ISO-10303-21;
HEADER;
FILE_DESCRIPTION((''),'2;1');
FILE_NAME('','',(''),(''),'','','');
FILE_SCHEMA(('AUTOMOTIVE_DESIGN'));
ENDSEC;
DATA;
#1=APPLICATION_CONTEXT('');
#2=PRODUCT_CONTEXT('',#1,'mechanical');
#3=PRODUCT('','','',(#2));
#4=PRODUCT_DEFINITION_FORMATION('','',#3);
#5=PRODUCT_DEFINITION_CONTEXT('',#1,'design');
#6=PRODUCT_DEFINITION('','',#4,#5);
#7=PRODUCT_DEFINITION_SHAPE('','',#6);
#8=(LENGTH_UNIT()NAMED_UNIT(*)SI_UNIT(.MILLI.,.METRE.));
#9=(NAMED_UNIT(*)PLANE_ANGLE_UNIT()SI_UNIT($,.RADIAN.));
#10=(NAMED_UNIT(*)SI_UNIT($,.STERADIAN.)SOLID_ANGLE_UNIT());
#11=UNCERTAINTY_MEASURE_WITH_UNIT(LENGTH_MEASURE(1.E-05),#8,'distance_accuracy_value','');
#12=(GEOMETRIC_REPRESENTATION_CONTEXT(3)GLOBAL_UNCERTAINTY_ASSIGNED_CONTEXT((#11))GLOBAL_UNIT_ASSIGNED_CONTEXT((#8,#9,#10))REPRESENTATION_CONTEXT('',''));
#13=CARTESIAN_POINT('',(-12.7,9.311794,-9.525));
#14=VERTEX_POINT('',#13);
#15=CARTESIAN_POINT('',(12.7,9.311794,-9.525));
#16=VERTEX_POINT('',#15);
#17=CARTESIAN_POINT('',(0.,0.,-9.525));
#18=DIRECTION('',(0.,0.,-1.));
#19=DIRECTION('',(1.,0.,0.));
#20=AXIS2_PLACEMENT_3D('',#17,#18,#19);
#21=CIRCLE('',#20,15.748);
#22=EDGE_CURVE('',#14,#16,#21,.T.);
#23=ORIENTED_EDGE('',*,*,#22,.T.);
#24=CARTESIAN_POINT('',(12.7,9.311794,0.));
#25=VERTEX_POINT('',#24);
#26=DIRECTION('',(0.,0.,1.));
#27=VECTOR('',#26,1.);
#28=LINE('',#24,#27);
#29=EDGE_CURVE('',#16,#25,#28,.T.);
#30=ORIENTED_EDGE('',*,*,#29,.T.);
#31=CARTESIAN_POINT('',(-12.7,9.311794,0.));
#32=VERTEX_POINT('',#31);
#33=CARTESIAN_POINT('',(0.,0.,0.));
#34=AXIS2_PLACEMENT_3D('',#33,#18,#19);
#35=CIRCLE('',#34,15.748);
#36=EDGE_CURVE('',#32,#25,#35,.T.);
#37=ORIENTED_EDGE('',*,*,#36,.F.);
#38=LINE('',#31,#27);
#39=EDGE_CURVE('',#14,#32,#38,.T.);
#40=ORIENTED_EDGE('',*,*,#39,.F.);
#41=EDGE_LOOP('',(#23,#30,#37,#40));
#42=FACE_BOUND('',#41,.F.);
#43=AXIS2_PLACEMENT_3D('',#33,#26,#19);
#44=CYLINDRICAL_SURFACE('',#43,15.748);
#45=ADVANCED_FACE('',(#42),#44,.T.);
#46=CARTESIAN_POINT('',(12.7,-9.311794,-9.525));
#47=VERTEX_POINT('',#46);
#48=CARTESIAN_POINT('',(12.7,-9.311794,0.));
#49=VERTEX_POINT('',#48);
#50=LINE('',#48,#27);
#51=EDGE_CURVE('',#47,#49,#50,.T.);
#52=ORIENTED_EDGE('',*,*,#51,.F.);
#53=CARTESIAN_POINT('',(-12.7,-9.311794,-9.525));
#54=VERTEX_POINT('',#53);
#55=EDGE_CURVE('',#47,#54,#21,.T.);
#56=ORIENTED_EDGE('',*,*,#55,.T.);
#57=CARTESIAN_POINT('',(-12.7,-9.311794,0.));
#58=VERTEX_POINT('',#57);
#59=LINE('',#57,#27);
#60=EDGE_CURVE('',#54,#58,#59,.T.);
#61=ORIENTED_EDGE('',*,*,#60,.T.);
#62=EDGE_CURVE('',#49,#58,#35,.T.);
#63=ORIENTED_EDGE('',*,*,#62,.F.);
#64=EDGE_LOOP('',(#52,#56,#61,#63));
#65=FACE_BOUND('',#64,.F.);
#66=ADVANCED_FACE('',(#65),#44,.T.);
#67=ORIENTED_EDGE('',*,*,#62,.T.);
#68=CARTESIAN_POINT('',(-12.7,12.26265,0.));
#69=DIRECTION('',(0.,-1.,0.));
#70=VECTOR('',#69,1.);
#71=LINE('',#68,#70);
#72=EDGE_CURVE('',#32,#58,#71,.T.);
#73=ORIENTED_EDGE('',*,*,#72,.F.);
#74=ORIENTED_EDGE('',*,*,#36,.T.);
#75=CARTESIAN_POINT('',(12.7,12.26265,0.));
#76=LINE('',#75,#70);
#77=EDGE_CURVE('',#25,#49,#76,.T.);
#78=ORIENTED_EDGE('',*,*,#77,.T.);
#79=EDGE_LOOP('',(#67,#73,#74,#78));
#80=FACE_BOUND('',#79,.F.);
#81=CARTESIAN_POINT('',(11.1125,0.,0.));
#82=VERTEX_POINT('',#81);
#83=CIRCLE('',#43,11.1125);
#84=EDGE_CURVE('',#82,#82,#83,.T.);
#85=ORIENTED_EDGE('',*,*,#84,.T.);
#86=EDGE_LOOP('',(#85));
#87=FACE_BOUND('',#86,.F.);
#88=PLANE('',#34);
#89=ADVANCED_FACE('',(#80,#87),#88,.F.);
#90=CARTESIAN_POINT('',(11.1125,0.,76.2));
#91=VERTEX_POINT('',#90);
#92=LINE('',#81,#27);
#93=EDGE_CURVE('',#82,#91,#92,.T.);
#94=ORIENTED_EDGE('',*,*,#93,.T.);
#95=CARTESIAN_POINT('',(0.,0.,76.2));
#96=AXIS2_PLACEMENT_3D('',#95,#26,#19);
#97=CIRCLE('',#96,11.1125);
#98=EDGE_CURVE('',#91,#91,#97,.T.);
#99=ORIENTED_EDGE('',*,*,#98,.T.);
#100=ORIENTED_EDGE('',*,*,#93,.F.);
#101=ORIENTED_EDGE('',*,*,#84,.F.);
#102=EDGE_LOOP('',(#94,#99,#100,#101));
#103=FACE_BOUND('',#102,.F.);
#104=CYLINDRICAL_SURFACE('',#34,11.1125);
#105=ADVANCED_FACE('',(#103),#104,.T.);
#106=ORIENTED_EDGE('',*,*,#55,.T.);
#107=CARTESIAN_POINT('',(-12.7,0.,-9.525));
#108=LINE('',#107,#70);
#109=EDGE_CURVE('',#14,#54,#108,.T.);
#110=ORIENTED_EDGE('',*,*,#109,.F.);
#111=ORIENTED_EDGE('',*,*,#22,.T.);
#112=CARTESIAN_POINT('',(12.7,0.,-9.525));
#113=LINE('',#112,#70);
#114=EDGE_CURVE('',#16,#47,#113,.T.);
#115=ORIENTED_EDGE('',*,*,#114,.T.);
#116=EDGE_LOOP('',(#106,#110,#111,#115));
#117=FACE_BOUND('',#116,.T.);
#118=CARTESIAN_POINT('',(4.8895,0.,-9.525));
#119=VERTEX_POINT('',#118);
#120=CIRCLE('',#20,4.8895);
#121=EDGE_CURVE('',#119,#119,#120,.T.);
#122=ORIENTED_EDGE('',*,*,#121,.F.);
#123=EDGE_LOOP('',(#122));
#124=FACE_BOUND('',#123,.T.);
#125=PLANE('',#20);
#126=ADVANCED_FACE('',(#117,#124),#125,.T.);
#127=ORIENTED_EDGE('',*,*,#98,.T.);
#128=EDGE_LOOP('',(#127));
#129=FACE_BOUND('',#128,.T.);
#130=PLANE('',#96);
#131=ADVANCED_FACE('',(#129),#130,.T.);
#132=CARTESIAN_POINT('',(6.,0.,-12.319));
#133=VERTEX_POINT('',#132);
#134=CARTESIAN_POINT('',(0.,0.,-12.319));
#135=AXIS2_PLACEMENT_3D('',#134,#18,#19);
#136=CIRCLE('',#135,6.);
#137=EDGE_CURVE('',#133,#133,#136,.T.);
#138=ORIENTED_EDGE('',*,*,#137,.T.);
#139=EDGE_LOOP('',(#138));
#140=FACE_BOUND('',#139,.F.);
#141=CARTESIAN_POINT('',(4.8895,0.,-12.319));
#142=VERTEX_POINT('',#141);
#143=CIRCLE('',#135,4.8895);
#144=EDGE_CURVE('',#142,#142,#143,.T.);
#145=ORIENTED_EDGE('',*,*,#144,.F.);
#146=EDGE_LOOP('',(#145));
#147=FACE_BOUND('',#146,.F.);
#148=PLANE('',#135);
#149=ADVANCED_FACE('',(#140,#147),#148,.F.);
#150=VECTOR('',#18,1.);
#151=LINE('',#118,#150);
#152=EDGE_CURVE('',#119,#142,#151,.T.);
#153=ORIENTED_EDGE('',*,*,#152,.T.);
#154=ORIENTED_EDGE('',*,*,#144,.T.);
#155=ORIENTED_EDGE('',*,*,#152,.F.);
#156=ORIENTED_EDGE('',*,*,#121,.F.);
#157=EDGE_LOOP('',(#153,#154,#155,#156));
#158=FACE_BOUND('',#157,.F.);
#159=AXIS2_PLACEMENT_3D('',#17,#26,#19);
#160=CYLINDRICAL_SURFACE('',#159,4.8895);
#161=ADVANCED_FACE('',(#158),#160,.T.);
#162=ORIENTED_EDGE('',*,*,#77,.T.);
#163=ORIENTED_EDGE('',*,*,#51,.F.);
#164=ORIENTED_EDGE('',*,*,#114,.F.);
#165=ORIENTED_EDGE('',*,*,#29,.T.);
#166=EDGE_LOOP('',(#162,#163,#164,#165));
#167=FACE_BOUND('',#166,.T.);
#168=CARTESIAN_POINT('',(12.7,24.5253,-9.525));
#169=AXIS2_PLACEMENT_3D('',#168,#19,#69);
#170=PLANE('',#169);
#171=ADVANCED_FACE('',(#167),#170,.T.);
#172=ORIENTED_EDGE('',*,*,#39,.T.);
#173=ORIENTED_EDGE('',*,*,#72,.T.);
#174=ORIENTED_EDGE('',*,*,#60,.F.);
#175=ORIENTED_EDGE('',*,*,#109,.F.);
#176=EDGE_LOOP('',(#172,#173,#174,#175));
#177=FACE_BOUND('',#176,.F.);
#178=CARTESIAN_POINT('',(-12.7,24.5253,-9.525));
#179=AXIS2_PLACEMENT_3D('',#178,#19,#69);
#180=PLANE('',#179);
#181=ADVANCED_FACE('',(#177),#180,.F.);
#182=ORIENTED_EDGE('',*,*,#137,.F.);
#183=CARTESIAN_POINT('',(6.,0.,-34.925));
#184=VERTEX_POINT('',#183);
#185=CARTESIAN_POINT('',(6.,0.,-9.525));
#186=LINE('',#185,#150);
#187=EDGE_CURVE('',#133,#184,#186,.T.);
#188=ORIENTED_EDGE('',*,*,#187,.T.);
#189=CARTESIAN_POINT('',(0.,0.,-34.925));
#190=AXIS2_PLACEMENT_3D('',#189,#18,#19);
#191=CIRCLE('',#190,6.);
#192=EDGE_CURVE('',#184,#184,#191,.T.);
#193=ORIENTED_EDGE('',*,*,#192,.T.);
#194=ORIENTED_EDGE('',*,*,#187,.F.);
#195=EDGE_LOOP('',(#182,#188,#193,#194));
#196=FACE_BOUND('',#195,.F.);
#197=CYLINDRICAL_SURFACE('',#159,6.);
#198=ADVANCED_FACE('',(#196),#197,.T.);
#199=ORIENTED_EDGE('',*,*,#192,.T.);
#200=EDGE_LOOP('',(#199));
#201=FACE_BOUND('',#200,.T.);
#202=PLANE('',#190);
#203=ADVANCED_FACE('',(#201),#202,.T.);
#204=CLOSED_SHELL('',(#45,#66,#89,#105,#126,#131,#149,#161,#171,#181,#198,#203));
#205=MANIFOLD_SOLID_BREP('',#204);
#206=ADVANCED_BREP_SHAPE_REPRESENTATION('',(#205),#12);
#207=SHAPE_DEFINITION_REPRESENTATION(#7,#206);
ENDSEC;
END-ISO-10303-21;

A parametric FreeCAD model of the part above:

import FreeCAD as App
import Part
import Sketcher
Q = App.Units.Quantity


def add_polygon(sketch, points):
    """Adds a closed chain of lines whose ends are joined by coincident constraints."""
    first, n = sketch.GeometryCount, len(points)
    for a, b in zip(points, points[1:] + points[:1]):
        sketch.addGeometry(Part.LineSegment(App.Vector(*a, 0), App.Vector(*b, 0)), False)
    for i in range(n):
        sketch.addConstraint(Sketcher.Constraint("Coincident", first + i, 2, first + (i + 1) % n, 1))

doc = App.newDocument("Part")
body = doc.addObject("PartDesign::Body", "Body")

sketch1 = body.newObject("Sketcher::SketchObject", "Sketch")
sketch1.AttachmentSupport = (doc.getObject("XY_Plane"), [""])
sketch1.MapMode = "FlatFace"
sketch1.addGeometry(Part.Circle(App.Vector(0, 0, 0), App.Vector(0, 0, 1), 11), False)
sketch1.addConstraint([
    Sketcher.Constraint("Coincident", 0, 3, -1, 1),
    Sketcher.Constraint("Diameter", 0, Q("0.875 in")),
])
pad1 = body.newObject("PartDesign::Pad", "Pad")
pad1.Profile = sketch1
pad1.Length = Q("3 in")

sketch2 = body.newObject("Sketcher::SketchObject", "Sketch001")
sketch2.AttachmentSupport = (doc.getObject("XY_Plane"), [""])
sketch2.MapMode = "FlatFace"
sketch2.addGeometry(Part.Circle(App.Vector(0, 0, 0), App.Vector(0, 0, 1), 16), False)
sketch2.addConstraint([
    Sketcher.Constraint("Coincident", 0, 3, -1, 1),
    Sketcher.Constraint("Diameter", 0, Q("1.24 in")),
])
pad2 = body.newObject("PartDesign::Pad", "Pad001")
pad2.Profile = sketch2
pad2.Length = Q("0.375 in")
pad2.Reversed = True

sketch3 = body.newObject("Sketcher::SketchObject", "Sketch002")
sketch3.AttachmentSupport = (doc.getObject("XY_Plane"), [""])
sketch3.MapMode = "FlatFace"
sketch3.AttachmentOffset = App.Placement(App.Vector(0, 0, -0.375 * 25.4), App.Rotation())
sketch3.addGeometry(Part.Circle(App.Vector(0, 0, 0), App.Vector(0, 0, 1), 6), False)
sketch3.addConstraint([
    Sketcher.Constraint("Coincident", 0, 3, -1, 1),
    Sketcher.Constraint("Diameter", 0, Q("12 mm")),
])
pad3 = body.newObject("PartDesign::Pad", "Pad002")
pad3.Profile = sketch3
pad3.Length = Q("1 in")
pad3.Reversed = True

sketch4 = body.newObject("Sketcher::SketchObject", "Sketch003")
sketch4.AttachmentSupport = (doc.getObject("XY_Plane"), [""])
sketch4.MapMode = "FlatFace"
sketch4.AttachmentOffset = App.Placement(App.Vector(0, 0, -0.375 * 25.4), App.Rotation())
sketch4.addGeometry([
    Part.Circle(App.Vector(0, 0, 0), App.Vector(0, 0, 1), 6),
    Part.Circle(App.Vector(0, 0, 0), App.Vector(0, 0, 1), 4.9),
], False)
sketch4.addConstraint([
    Sketcher.Constraint("Coincident", 0, 3, -1, 1),
    Sketcher.Constraint("Coincident", 1, 3, -1, 1),
    Sketcher.Constraint("Diameter", 1, Q("0.385 in")),
    Sketcher.Constraint("Diameter", 0, Q("12 mm")),
])
pocket1 = body.newObject("PartDesign::Pocket", "Pocket")
pocket1.Profile = sketch4
pocket1.Length = Q("0.11 in")

sketch5 = body.newObject("Sketcher::SketchObject", "Sketch004")
sketch5.AttachmentSupport = (doc.getObject("XY_Plane"), [""])
sketch5.MapMode = "FlatFace"
sketch5.AttachmentOffset = App.Placement(App.Vector(0, 0, -0.375 * 25.4), App.Rotation())
add_polygon(sketch5, [(-26, -25), (-26, 25), (-13, 25), (-13, -25)])
add_polygon(sketch5, [(13, -25), (13, 25), (26, 25), (26, -25)])
sketch5.addConstraint([
    Sketcher.Constraint("Vertical", 0),
    Sketcher.Constraint("Horizontal", 1),
    Sketcher.Constraint("Vertical", 2),
    Sketcher.Constraint("Horizontal", 3),
    Sketcher.Constraint("Vertical", 4),
    Sketcher.Constraint("Horizontal", 5),
    Sketcher.Constraint("Vertical", 6),
    Sketcher.Constraint("Horizontal", 7),
    Sketcher.Constraint("Symmetric", 2, 2, 4, 2, -1, 1),
    Sketcher.Constraint("Symmetric", 0, 2, 6, 2, -1, 1),
    Sketcher.Constraint("Horizontal", 1, 2, 4, 2),
    Sketcher.Constraint("DistanceX", 1, 2, 4, 2, Q("1 in")),
    Sketcher.Constraint("DistanceY", 0, 1, 0, 2, Q("49.0506 mm")),
    Sketcher.Constraint("DistanceX", 1, 1, 1, 2, Q("13.440132 mm")),
])
pocket2 = body.newObject("PartDesign::Pocket", "Pocket001")
pocket2.Profile = sketch5
pocket2.Type = "ThroughAll"
pocket2.Reversed = True

doc.recompute()
